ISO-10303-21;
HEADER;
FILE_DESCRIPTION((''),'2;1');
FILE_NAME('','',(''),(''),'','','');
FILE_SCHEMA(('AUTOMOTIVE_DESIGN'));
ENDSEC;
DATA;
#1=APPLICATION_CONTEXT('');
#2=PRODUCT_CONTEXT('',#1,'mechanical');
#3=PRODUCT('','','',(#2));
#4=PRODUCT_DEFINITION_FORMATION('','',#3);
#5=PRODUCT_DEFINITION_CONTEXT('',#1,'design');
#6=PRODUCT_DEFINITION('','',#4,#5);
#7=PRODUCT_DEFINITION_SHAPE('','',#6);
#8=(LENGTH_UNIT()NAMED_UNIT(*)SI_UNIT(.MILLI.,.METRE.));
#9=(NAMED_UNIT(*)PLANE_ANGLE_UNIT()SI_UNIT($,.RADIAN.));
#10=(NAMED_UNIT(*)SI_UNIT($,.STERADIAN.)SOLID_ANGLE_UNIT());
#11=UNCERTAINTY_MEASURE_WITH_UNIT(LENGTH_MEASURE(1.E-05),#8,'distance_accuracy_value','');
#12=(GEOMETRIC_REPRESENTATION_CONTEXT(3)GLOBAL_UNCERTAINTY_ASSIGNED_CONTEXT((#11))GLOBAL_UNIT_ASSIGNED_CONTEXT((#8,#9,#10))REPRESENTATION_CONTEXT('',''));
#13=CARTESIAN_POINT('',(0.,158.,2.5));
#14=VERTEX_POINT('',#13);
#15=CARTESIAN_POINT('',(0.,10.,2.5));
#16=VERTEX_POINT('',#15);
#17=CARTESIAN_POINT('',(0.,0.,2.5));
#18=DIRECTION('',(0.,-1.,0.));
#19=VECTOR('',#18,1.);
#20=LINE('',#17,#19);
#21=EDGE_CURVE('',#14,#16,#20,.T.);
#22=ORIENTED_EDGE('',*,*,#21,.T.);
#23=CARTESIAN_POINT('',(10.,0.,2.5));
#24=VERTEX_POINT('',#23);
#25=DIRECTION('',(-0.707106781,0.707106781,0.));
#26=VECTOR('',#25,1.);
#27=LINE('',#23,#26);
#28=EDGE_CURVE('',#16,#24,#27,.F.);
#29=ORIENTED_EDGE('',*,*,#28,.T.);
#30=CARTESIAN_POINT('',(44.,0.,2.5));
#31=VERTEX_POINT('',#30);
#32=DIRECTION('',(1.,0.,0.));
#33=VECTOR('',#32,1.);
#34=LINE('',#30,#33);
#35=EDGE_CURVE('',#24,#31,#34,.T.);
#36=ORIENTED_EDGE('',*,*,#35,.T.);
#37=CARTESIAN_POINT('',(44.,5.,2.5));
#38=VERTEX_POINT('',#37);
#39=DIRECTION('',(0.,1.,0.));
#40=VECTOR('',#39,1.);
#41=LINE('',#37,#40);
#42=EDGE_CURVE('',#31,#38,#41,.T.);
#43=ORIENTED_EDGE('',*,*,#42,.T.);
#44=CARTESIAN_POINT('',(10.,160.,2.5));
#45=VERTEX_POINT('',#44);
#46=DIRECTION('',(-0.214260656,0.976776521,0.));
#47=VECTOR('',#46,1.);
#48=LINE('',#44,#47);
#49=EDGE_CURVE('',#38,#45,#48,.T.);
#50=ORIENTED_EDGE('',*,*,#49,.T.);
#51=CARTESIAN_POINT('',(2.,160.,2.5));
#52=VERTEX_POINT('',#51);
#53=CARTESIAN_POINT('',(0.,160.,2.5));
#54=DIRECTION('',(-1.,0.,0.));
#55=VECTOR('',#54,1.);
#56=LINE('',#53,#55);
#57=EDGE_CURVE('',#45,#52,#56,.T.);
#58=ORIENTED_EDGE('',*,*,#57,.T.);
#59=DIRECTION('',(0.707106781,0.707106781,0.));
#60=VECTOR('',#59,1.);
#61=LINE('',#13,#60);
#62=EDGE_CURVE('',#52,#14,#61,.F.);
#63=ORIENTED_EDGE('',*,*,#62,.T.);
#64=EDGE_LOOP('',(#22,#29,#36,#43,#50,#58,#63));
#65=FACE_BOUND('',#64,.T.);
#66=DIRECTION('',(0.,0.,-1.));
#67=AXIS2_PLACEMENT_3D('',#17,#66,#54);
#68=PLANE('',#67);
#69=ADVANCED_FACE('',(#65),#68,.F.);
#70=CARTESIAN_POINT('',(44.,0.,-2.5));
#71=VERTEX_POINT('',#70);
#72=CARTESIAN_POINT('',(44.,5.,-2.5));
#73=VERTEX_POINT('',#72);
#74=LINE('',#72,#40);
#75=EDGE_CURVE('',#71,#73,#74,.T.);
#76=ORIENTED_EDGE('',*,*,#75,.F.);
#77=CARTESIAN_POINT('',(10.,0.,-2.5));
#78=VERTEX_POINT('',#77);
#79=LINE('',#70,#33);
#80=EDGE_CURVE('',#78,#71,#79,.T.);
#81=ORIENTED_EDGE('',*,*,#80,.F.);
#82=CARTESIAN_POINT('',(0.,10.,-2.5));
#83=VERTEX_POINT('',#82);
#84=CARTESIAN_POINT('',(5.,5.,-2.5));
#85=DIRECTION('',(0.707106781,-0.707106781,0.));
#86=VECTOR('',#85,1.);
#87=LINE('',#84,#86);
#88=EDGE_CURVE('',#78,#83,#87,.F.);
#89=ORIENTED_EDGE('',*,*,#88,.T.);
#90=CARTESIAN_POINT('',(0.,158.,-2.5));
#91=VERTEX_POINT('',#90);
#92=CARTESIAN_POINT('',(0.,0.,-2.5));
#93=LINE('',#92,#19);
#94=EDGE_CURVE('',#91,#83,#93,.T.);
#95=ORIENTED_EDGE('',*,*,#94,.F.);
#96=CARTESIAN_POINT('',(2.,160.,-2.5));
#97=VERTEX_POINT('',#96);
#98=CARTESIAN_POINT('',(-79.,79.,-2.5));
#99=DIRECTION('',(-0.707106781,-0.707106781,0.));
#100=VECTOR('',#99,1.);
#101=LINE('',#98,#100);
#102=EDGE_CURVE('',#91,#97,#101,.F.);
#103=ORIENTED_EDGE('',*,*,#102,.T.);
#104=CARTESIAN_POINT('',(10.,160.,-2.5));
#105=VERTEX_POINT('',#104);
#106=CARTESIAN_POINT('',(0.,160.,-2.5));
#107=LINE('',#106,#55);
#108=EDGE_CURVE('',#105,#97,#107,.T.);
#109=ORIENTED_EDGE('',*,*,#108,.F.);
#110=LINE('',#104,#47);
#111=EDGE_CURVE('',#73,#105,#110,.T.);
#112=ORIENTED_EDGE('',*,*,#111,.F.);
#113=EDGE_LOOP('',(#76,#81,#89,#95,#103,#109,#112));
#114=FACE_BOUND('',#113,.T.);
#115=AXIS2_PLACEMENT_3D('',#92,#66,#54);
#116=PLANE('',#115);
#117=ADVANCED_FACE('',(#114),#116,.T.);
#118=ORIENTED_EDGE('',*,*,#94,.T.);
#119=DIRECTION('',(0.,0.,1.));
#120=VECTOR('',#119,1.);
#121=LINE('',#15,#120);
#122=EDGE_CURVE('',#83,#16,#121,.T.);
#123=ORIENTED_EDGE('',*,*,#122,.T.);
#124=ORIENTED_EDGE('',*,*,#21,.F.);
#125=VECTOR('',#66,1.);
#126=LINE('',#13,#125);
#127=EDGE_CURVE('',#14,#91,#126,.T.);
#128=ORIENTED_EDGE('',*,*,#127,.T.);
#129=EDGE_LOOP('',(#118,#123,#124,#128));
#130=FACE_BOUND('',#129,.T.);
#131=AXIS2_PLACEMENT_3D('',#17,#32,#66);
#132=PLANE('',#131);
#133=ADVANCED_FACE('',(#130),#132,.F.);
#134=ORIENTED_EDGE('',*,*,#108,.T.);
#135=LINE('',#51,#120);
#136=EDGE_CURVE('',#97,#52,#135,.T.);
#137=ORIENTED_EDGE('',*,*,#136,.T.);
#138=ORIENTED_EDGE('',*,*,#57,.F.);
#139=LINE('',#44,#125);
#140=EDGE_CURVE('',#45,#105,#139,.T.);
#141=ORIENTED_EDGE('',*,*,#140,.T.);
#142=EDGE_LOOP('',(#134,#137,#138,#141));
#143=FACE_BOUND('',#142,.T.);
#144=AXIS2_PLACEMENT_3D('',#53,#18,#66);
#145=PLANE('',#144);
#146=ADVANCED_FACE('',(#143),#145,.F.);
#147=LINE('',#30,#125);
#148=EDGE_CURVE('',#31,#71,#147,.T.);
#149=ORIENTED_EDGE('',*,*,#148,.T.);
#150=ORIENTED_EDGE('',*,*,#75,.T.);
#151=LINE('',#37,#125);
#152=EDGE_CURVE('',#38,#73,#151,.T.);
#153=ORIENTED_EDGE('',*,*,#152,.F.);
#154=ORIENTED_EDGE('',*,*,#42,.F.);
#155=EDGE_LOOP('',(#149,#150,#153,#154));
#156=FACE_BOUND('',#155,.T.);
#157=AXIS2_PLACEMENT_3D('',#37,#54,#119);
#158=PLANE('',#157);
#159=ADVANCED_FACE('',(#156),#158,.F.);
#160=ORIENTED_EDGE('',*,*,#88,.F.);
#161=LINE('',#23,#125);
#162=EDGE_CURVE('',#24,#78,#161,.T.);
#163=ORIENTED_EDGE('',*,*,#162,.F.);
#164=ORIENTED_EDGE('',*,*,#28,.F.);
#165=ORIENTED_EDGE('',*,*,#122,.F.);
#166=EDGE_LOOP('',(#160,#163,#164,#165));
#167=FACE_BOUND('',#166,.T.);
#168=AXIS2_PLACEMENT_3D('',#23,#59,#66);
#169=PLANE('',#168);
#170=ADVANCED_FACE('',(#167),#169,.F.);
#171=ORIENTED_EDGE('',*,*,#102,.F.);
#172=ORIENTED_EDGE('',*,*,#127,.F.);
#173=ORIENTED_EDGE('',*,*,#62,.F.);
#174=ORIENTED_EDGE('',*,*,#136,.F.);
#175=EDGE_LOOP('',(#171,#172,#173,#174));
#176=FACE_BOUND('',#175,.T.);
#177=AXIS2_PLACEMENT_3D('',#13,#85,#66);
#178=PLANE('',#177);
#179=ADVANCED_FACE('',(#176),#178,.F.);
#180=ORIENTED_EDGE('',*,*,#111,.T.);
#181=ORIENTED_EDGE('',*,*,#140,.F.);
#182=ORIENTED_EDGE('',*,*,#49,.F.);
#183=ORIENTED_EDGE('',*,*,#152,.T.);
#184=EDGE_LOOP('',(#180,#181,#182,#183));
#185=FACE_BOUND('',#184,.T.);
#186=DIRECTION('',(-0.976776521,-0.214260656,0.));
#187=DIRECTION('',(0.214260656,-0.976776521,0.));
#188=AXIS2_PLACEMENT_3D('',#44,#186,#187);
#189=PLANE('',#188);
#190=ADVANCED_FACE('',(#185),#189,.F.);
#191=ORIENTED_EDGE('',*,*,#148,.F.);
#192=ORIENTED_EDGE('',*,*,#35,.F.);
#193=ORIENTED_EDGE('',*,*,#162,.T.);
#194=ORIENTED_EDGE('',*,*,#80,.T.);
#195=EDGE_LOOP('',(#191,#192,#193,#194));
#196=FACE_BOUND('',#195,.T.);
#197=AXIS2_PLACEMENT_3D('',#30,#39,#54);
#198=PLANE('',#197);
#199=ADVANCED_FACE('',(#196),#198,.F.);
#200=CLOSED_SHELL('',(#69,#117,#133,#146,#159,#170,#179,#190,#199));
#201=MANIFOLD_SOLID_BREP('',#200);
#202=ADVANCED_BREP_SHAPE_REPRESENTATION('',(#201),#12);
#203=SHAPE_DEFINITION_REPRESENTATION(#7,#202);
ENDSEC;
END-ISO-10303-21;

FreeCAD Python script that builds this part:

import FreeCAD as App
import Part
import Sketcher
from FreeCAD import Vector
Q = App.Units.Quantity


def edges_at(feature, points):
    """Names of the edges that pass closest to the given points."""
    edges = feature.Shape.Edges
    near = lambda p: min(range(len(edges)), key=lambda i: edges[i].distToShape(Part.Vertex(*p))[0])
    return sorted({f"Edge{near(p) + 1}" for p in points})

doc = App.newDocument("Part")
body = doc.addObject("PartDesign::Body", "Body")

# Sketch on XY plane
sketch1 = doc.addObject("Sketcher::SketchObject", "Sketch")
body.addObject(sketch1)
sketch1.AttachmentSupport = (doc.XY_Plane, [""])
sketch1.MapMode = "FlatFace"
sketch1.addGeometry(Part.LineSegment(Vector(0, 160, 0), Vector(0, 0, 0)), False)
sketch1.addGeometry(Part.LineSegment(Vector(0, 0, 0), Vector(44, 0, 0)), False)
sketch1.addGeometry(Part.LineSegment(Vector(44, 0, 0), Vector(44, 5, 0)), False)
sketch1.addGeometry(Part.LineSegment(Vector(44, 5, 0), Vector(10, 160, 0)), False)
sketch1.addGeometry(Part.LineSegment(Vector(10, 160, 0), Vector(0, 160, 0)), False)
sketch1.addConstraint(Sketcher.Constraint("Coincident", 0, 2, 1, 1))
sketch1.addConstraint(Sketcher.Constraint("Coincident", 1, 2, 2, 1))
sketch1.addConstraint(Sketcher.Constraint("Coincident", 2, 2, 3, 1))
sketch1.addConstraint(Sketcher.Constraint("Coincident", 3, 2, 4, 1))
sketch1.addConstraint(Sketcher.Constraint("Coincident", 4, 2, 0, 1))
sketch1.addConstraint(Sketcher.Constraint("Vertical", 0))
sketch1.addConstraint(Sketcher.Constraint("Horizontal", 1))
sketch1.addConstraint(Sketcher.Constraint("Vertical", 2))
sketch1.addConstraint(Sketcher.Constraint("Horizontal", 4))
sketch1.addConstraint(Sketcher.Constraint("Coincident", 0, 2, -1, 1))
sketch1.addConstraint(Sketcher.Constraint("DistanceX", 1, 1, 1, 2, Q("44 mm")))
sketch1.addConstraint(Sketcher.Constraint("DistanceX", 4, 2, 4, 1, Q("10 mm")))
sketch1.addConstraint(Sketcher.Constraint("DistanceY", 0, 2, 0, 1, Q("160 mm")))
sketch1.addConstraint(Sketcher.Constraint("DistanceY", 2, 1, 2, 2, Q("5 mm")))
pad1 = doc.addObject("PartDesign::Pad", "Pad")
body.addObject(pad1)
pad1.Profile = sketch1
pad1.Length = 5
pad1.Midplane = True
doc.recompute()

chamfer = doc.addObject("PartDesign::Chamfer", "Chamfer")
body.addObject(chamfer)
chamfer.Base = (pad1, edges_at(pad1, [(0, 0, 0)]))
chamfer.Size = 10
doc.recompute()

chamfer2 = doc.addObject("PartDesign::Chamfer", "Chamfer001")
body.addObject(chamfer2)
chamfer2.Base = (chamfer, edges_at(chamfer, [(0, 160, 0)]))
chamfer2.Size = 2

doc.recompute()
